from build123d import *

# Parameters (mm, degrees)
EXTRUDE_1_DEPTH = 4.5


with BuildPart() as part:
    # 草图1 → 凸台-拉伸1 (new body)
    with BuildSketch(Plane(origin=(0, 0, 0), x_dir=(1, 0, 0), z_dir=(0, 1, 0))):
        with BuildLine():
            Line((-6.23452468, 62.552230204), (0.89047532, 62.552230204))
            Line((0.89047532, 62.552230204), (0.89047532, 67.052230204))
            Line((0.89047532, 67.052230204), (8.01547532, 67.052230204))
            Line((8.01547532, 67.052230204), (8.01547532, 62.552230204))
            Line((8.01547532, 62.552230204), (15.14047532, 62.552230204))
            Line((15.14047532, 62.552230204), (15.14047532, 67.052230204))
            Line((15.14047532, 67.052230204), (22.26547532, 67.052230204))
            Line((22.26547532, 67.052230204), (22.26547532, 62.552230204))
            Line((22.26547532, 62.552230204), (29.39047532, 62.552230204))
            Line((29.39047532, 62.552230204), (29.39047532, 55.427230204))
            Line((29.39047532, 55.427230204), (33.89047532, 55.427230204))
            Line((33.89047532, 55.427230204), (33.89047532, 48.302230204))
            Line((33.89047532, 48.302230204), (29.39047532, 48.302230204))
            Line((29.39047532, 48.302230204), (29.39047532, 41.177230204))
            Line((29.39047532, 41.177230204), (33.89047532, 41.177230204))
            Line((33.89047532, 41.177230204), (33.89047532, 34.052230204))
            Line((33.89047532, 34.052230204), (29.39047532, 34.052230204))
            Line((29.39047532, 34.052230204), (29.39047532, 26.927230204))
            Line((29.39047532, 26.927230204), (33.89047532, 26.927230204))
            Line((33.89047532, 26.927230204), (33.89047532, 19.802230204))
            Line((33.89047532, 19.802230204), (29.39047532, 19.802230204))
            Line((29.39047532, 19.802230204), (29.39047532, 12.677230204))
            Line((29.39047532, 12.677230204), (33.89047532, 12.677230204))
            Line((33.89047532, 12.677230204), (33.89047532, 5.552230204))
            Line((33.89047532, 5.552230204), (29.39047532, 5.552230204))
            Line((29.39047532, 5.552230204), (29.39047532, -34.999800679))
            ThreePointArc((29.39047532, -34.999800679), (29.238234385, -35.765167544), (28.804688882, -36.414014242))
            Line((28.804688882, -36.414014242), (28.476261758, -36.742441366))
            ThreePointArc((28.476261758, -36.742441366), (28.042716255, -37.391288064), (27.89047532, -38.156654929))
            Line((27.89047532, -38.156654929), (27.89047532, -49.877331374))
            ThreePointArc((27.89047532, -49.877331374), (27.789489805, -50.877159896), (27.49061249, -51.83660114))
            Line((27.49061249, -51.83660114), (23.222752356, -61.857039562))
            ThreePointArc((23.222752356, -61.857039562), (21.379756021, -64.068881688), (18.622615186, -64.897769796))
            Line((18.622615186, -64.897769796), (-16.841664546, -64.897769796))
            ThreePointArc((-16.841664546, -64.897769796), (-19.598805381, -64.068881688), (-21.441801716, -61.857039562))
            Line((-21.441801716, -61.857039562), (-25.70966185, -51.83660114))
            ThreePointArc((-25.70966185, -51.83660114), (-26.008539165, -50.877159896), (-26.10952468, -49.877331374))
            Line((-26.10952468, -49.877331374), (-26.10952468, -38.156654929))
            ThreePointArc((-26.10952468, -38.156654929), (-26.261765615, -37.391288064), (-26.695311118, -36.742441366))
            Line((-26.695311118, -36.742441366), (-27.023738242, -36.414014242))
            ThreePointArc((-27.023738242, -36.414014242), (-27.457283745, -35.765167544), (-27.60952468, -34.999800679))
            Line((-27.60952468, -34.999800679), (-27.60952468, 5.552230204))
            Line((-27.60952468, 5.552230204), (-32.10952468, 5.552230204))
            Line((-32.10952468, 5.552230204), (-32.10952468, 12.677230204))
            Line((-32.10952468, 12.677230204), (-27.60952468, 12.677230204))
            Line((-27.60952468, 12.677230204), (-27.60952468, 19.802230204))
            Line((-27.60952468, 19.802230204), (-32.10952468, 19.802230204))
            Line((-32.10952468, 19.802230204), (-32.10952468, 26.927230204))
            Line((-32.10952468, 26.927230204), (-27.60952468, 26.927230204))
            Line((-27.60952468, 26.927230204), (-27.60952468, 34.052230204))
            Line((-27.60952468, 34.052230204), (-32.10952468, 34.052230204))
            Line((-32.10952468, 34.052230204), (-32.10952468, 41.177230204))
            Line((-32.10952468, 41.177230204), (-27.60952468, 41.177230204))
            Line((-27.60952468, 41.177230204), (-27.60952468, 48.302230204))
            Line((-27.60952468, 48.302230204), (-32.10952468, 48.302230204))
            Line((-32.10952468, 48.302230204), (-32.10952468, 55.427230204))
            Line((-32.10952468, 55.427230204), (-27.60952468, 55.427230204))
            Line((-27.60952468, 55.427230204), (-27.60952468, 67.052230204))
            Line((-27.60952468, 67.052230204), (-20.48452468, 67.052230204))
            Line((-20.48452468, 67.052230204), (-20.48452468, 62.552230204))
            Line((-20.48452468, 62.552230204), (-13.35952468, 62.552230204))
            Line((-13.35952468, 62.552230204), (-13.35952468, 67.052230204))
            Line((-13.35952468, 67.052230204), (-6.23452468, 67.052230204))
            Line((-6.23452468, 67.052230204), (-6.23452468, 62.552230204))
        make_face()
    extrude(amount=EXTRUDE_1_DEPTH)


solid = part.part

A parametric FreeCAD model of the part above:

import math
import FreeCAD as App
import Part
import Sketcher
from FreeCAD import Vector
Q = App.Units.Quantity

doc = App.newDocument("Part")
body = doc.addObject("PartDesign::Body", "Body")

# Sketch on XZ plane
sketch1 = doc.addObject("Sketcher::SketchObject", "Sketch")
body.addObject(sketch1)
sketch1.AttachmentSupport = (doc.XZ_Plane, [""])
sketch1.MapMode = "FlatFace"
sketch1.addGeometry(Part.LineSegment(Vector(0.890475, -62.55223, 0), Vector(-6.234525, -62.55223, 0)), False)
sketch1.addGeometry(Part.LineSegment(Vector(-6.234525, -62.55223, 0), Vector(-6.234525, -67.05223, 0)), False)
sketch1.addGeometry(Part.LineSegment(Vector(-6.234525, -67.05223, 0), Vector(-13.359525, -67.05223, 0)), False)
sketch1.addGeometry(Part.LineSegment(Vector(-13.359525, -67.05223, 0), Vector(-13.359525, -62.55223, 0)), False)
sketch1.addGeometry(Part.LineSegment(Vector(-13.359525, -62.55223, 0), Vector(-20.484525, -62.55223, 0)), False)
sketch1.addGeometry(Part.LineSegment(Vector(-20.484525, -62.55223, 0), Vector(-20.484525, -67.05223, 0)), False)
sketch1.addGeometry(Part.LineSegment(Vector(-20.484525, -67.05223, 0), Vector(-27.609525, -67.05223, 0)), False)
sketch1.addGeometry(Part.LineSegment(Vector(-27.609525, -67.05223, 0), Vector(-27.609525, -55.42723, 0)), False)
sketch1.addGeometry(Part.LineSegment(Vector(-27.609525, -55.42723, 0), Vector(-32.109525, -55.42723, 0)), False)
sketch1.addGeometry(Part.LineSegment(Vector(-32.109525, -55.42723, 0), Vector(-32.109525, -48.30223, 0)), False)
sketch1.addGeometry(Part.LineSegment(Vector(-32.109525, -48.30223, 0), Vector(-27.609525, -48.30223, 0)), False)
sketch1.addGeometry(Part.LineSegment(Vector(-27.609525, -48.30223, 0), Vector(-27.609525, -41.17723, 0)), False)
sketch1.addGeometry(Part.LineSegment(Vector(-27.609525, -41.17723, 0), Vector(-32.109525, -41.17723, 0)), False)
sketch1.addGeometry(Part.LineSegment(Vector(-32.109525, -41.17723, 0), Vector(-32.109525, -34.05223, 0)), False)
sketch1.addGeometry(Part.LineSegment(Vector(-32.109525, -34.05223, 0), Vector(-27.609525, -34.05223, 0)), False)
sketch1.addGeometry(Part.LineSegment(Vector(-27.609525, -34.05223, 0), Vector(-27.609525, -26.92723, 0)), False)
sketch1.addGeometry(Part.LineSegment(Vector(-27.609525, -26.92723, 0), Vector(-32.109525, -26.92723, 0)), False)
sketch1.addGeometry(Part.LineSegment(Vector(-32.109525, -26.92723, 0), Vector(-32.109525, -19.80223, 0)), False)
sketch1.addGeometry(Part.LineSegment(Vector(-32.109525, -19.80223, 0), Vector(-27.609525, -19.80223, 0)), False)
sketch1.addGeometry(Part.LineSegment(Vector(-27.609525, -19.80223, 0), Vector(-27.609525, -12.67723, 0)), False)
sketch1.addGeometry(Part.LineSegment(Vector(-27.609525, -12.67723, 0), Vector(-32.109525, -12.67723, 0)), False)
sketch1.addGeometry(Part.LineSegment(Vector(-32.109525, -12.67723, 0), Vector(-32.109525, -5.55223, 0)), False)
sketch1.addGeometry(Part.LineSegment(Vector(-32.109525, -5.55223, 0), Vector(-27.609525, -5.55223, 0)), False)
sketch1.addGeometry(Part.LineSegment(Vector(-27.609525, -5.55223, 0), Vector(-27.609525, 34.999801, 0)), False)
sketch1.addGeometry(Part.ArcOfCircle(Part.Circle(Vector(-25.609525, 34.999801, 0), Vector(0, 0, 1), 2), math.radians(135), math.radians(180)), False)
sketch1.addGeometry(Part.LineSegment(Vector(-27.023738, 36.414014, 0), Vector(-26.695311, 36.742441, 0)), False)
sketch1.addGeometry(Part.ArcOfCircle(Part.Circle(Vector(-28.109525, 38.156655, 0), Vector(0, 0, 1), 2), math.radians(-45), math.radians(0)), False)
sketch1.addGeometry(Part.LineSegment(Vector(-26.109525, 38.156655, 0), Vector(-26.109525, 49.877331, 0)), False)
sketch1.addGeometry(Part.ArcOfCircle(Part.Circle(Vector(-21.109525, 49.877331, 0), Vector(0, 0, 1), 5), math.radians(156.930093), math.radians(180)), False)
sketch1.addGeometry(Part.LineSegment(Vector(-25.709662, 51.836601, 0), Vector(-21.441802, 61.85704, 0)), False)
sketch1.addGeometry(Part.ArcOfCircle(Part.Circle(Vector(-16.841665, 59.89777, 0), Vector(0, 0, 1), 5), math.radians(90), math.radians(156.930093)), False)
sketch1.addGeometry(Part.LineSegment(Vector(-16.841665, 64.89777, 0), Vector(18.622615, 64.89777, 0)), False)
sketch1.addGeometry(Part.ArcOfCircle(Part.Circle(Vector(18.622615, 59.89777, 0), Vector(0, 0, 1), 5), math.radians(23.069907), math.radians(90)), False)
sketch1.addGeometry(Part.LineSegment(Vector(23.222752, 61.85704, 0), Vector(27.490612, 51.836601, 0)), False)
sketch1.addGeometry(Part.ArcOfCircle(Part.Circle(Vector(22.890475, 49.877331, 0), Vector(0, 0, 1), 5), math.radians(0), math.radians(23.069907)), False)
sketch1.addGeometry(Part.LineSegment(Vector(27.890475, 49.877331, 0), Vector(27.890475, 38.156655, 0)), False)
sketch1.addGeometry(Part.ArcOfCircle(Part.Circle(Vector(29.890475, 38.156655, 0), Vector(0, 0, 1), 2), math.radians(180), math.radians(225)), False)
sketch1.addGeometry(Part.LineSegment(Vector(28.476262, 36.742441, 0), Vector(28.804689, 36.414014, 0)), False)
sketch1.addGeometry(Part.ArcOfCircle(Part.Circle(Vector(27.390475, 34.999801, 0), Vector(0, 0, 1), 2), math.radians(0), math.radians(45)), False)
sketch1.addGeometry(Part.LineSegment(Vector(29.390475, 34.999801, 0), Vector(29.390475, -5.55223, 0)), False)
sketch1.addGeometry(Part.LineSegment(Vector(29.390475, -5.55223, 0), Vector(33.890475, -5.55223, 0)), False)
sketch1.addGeometry(Part.LineSegment(Vector(33.890475, -5.55223, 0), Vector(33.890475, -12.67723, 0)), False)
sketch1.addGeometry(Part.LineSegment(Vector(33.890475, -12.67723, 0), Vector(29.390475, -12.67723, 0)), False)
sketch1.addGeometry(Part.LineSegment(Vector(29.390475, -12.67723, 0), Vector(29.390475, -19.80223, 0)), False)
sketch1.addGeometry(Part.LineSegment(Vector(29.390475, -19.80223, 0), Vector(33.890475, -19.80223, 0)), False)
sketch1.addGeometry(Part.LineSegment(Vector(33.890475, -19.80223, 0), Vector(33.890475, -26.92723, 0)), False)
sketch1.addGeometry(Part.LineSegment(Vector(33.890475, -26.92723, 0), Vector(29.390475, -26.92723, 0)), False)
sketch1.addGeometry(Part.LineSegment(Vector(29.390475, -26.92723, 0), Vector(29.390475, -34.05223, 0)), False)
sketch1.addGeometry(Part.LineSegment(Vector(29.390475, -34.05223, 0), Vector(33.890475, -34.05223, 0)), False)
sketch1.addGeometry(Part.LineSegment(Vector(33.890475, -34.05223, 0), Vector(33.890475, -41.17723, 0)), False)
sketch1.addGeometry(Part.LineSegment(Vector(33.890475, -41.17723, 0), Vector(29.390475, -41.17723, 0)), False)
sketch1.addGeometry(Part.LineSegment(Vector(29.390475, -41.17723, 0), Vector(29.390475, -48.30223, 0)), False)
sketch1.addGeometry(Part.LineSegment(Vector(29.390475, -48.30223, 0), Vector(33.890475, -48.30223, 0)), False)
sketch1.addGeometry(Part.LineSegment(Vector(33.890475, -48.30223, 0), Vector(33.890475, -55.42723, 0)), False)
sketch1.addGeometry(Part.LineSegment(Vector(33.890475, -55.42723, 0), Vector(29.390475, -55.42723, 0)), False)
sketch1.addGeometry(Part.LineSegment(Vector(29.390475, -55.42723, 0), Vector(29.390475, -62.55223, 0)), False)
sketch1.addGeometry(Part.LineSegment(Vector(29.390475, -62.55223, 0), Vector(22.265475, -62.55223, 0)), False)
sketch1.addGeometry(Part.LineSegment(Vector(22.265475, -62.55223, 0), Vector(22.265475, -67.05223, 0)), False)
sketch1.addGeometry(Part.LineSegment(Vector(22.265475, -67.05223, 0), Vector(15.140475, -67.05223, 0)), False)
sketch1.addGeometry(Part.LineSegment(Vector(15.140475, -67.05223, 0), Vector(15.140475, -62.55223, 0)), False)
sketch1.addGeometry(Part.LineSegment(Vector(15.140475, -62.55223, 0), Vector(8.015475, -62.55223, 0)), False)
sketch1.addGeometry(Part.LineSegment(Vector(8.015475, -62.55223, 0), Vector(8.015475, -67.05223, 0)), False)
sketch1.addGeometry(Part.LineSegment(Vector(8.015475, -67.05223, 0), Vector(0.890475, -67.05223, 0)), False)
sketch1.addGeometry(Part.LineSegment(Vector(0.890475, -67.05223, 0), Vector(0.890475, -62.55223, 0)), False)
sketch1.addConstraint(Sketcher.Constraint("Coincident", 0, 2, 1, 1))
sketch1.addConstraint(Sketcher.Constraint("Coincident", 1, 2, 2, 1))
sketch1.addConstraint(Sketcher.Constraint("Coincident", 2, 2, 3, 1))
sketch1.addConstraint(Sketcher.Constraint("Coincident", 3, 2, 4, 1))
sketch1.addConstraint(Sketcher.Constraint("Coincident", 4, 2, 5, 1))
sketch1.addConstraint(Sketcher.Constraint("Coincident", 5, 2, 6, 1))
sketch1.addConstraint(Sketcher.Constraint("Coincident", 6, 2, 7, 1))
sketch1.addConstraint(Sketcher.Constraint("Coincident", 7, 2, 8, 1))
sketch1.addConstraint(Sketcher.Constraint("Coincident", 8, 2, 9, 1))
sketch1.addConstraint(Sketcher.Constraint("Coincident", 9, 2, 10, 1))
sketch1.addConstraint(Sketcher.Constraint("Coincident", 10, 2, 11, 1))
sketch1.addConstraint(Sketcher.Constraint("Coincident", 11, 2, 12, 1))
sketch1.addConstraint(Sketcher.Constraint("Coincident", 12, 2, 13, 1))
sketch1.addConstraint(Sketcher.Constraint("Coincident", 13, 2, 14, 1))
sketch1.addConstraint(Sketcher.Constraint("Coincident", 14, 2, 15, 1))
sketch1.addConstraint(Sketcher.Constraint("Coincident", 15, 2, 16, 1))
sketch1.addConstraint(Sketcher.Constraint("Coincident", 16, 2, 17, 1))
sketch1.addConstraint(Sketcher.Constraint("Coincident", 17, 2, 18, 1))
sketch1.addConstraint(Sketcher.Constraint("Coincident", 18, 2, 19, 1))
sketch1.addConstraint(Sketcher.Constraint("Coincident", 19, 2, 20, 1))
sketch1.addConstraint(Sketcher.Constraint("Coincident", 20, 2, 21, 1))
sketch1.addConstraint(Sketcher.Constraint("Coincident", 21, 2, 22, 1))
sketch1.addConstraint(Sketcher.Constraint("Coincident", 22, 2, 23, 1))
sketch1.addConstraint(Sketcher.Constraint("Tangent", 23, 2, 24, 2))
sketch1.addConstraint(Sketcher.Constraint("Tangent", 24, 1, 25, 1))
sketch1.addConstraint(Sketcher.Constraint("Tangent", 25, 2, 26, 1))
sketch1.addConstraint(Sketcher.Constraint("Tangent", 26, 2, 27, 1))
sketch1.addConstraint(Sketcher.Constraint("Tangent", 27, 2, 28, 2))
sketch1.addConstraint(Sketcher.Constraint("Tangent", 28, 1, 29, 1))
sketch1.addConstraint(Sketcher.Constraint("Tangent", 29, 2, 30, 2))
sketch1.addConstraint(Sketcher.Constraint("Tangent", 30, 1, 31, 1))
sketch1.addConstraint(Sketcher.Constraint("Tangent", 31, 2, 32, 2))
sketch1.addConstraint(Sketcher.Constraint("Tangent", 32, 1, 33, 1))
sketch1.addConstraint(Sketcher.Constraint("Tangent", 33, 2, 34, 2))
sketch1.addConstraint(Sketcher.Constraint("Tangent", 34, 1, 35, 1))
sketch1.addConstraint(Sketcher.Constraint("Tangent", 35, 2, 36, 1))
sketch1.addConstraint(Sketcher.Constraint("Tangent", 36, 2, 37, 1))
sketch1.addConstraint(Sketcher.Constraint("Tangent", 37, 2, 38, 2))
sketch1.addConstraint(Sketcher.Constraint("Tangent", 38, 1, 39, 1))
sketch1.addConstraint(Sketcher.Constraint("Coincident", 39, 2, 40, 1))
sketch1.addConstraint(Sketcher.Constraint("Coincident", 40, 2, 41, 1))
sketch1.addConstraint(Sketcher.Constraint("Coincident", 41, 2, 42, 1))
sketch1.addConstraint(Sketcher.Constraint("Coincident", 42, 2, 43, 1))
sketch1.addConstraint(Sketcher.Constraint("Coincident", 43, 2, 44, 1))
sketch1.addConstraint(Sketcher.Constraint("Coincident", 44, 2, 45, 1))
sketch1.addConstraint(Sketcher.Constraint("Coincident", 45, 2, 46, 1))
sketch1.addConstraint(Sketcher.Constraint("Coincident", 46, 2, 47, 1))
sketch1.addConstraint(Sketcher.Constraint("Coincident", 47, 2, 48, 1))
sketch1.addConstraint(Sketcher.Constraint("Coincident", 48, 2, 49, 1))
sketch1.addConstraint(Sketcher.Constraint("Coincident", 49, 2, 50, 1))
sketch1.addConstraint(Sketcher.Constraint("Coincident", 50, 2, 51, 1))
sketch1.addConstraint(Sketcher.Constraint("Coincident", 51, 2, 52, 1))
sketch1.addConstraint(Sketcher.Constraint("Coincident", 52, 2, 53, 1))
sketch1.addConstraint(Sketcher.Constraint("Coincident", 53, 2, 54, 1))
sketch1.addConstraint(Sketcher.Constraint("Coincident", 54, 2, 55, 1))
sketch1.addConstraint(Sketcher.Constraint("Coincident", 55, 2, 56, 1))
sketch1.addConstraint(Sketcher.Constraint("Coincident", 56, 2, 57, 1))
sketch1.addConstraint(Sketcher.Constraint("Coincident", 57, 2, 58, 1))
sketch1.addConstraint(Sketcher.Constraint("Coincident", 58, 2, 59, 1))
sketch1.addConstraint(Sketcher.Constraint("Coincident", 59, 2, 60, 1))
sketch1.addConstraint(Sketcher.Constraint("Coincident", 60, 2, 61, 1))
sketch1.addConstraint(Sketcher.Constraint("Coincident", 61, 2, 62, 1))
sketch1.addConstraint(Sketcher.Constraint("Coincident", 62, 2, 63, 1))
sketch1.addConstraint(Sketcher.Constraint("Coincident", 63, 2, 0, 1))
sketch1.addConstraint(Sketcher.Constraint("Horizontal", 0))
sketch1.addConstraint(Sketcher.Constraint("Vertical", 1))
sketch1.addConstraint(Sketcher.Constraint("Horizontal", 2))
sketch1.addConstraint(Sketcher.Constraint("Vertical", 3))
sketch1.addConstraint(Sketcher.Constraint("Horizontal", 4))
sketch1.addConstraint(Sketcher.Constraint("Vertical", 5))
sketch1.addConstraint(Sketcher.Constraint("Horizontal", 6))
sketch1.addConstraint(Sketcher.Constraint("Vertical", 7))
sketch1.addConstraint(Sketcher.Constraint("Horizontal", 8))
sketch1.addConstraint(Sketcher.Constraint("Vertical", 9))
sketch1.addConstraint(Sketcher.Constraint("Horizontal", 10))
sketch1.addConstraint(Sketcher.Constraint("Vertical", 11))
sketch1.addConstraint(Sketcher.Constraint("Horizontal", 12))
sketch1.addConstraint(Sketcher.Constraint("Vertical", 13))
sketch1.addConstraint(Sketcher.Constraint("Horizontal", 14))
sketch1.addConstraint(Sketcher.Constraint("Vertical", 15))
sketch1.addConstraint(Sketcher.Constraint("Horizontal", 16))
sketch1.addConstraint(Sketcher.Constraint("Vertical", 17))
sketch1.addConstraint(Sketcher.Constraint("Horizontal", 18))
sketch1.addConstraint(Sketcher.Constraint("Vertical", 19))
sketch1.addConstraint(Sketcher.Constraint("Horizontal", 20))
sketch1.addConstraint(Sketcher.Constraint("Vertical", 21))
sketch1.addConstraint(Sketcher.Constraint("Horizontal", 22))
sketch1.addConstraint(Sketcher.Constraint("Vertical", 23))
sketch1.addConstraint(Sketcher.Constraint("Vertical", 27))
sketch1.addConstraint(Sketcher.Constraint("Horizontal", 31))
sketch1.addConstraint(Sketcher.Constraint("Vertical", 35))
sketch1.addConstraint(Sketcher.Constraint("Vertical", 39))
sketch1.addConstraint(Sketcher.Constraint("Horizontal", 40))
sketch1.addConstraint(Sketcher.Constraint("Vertical", 41))
sketch1.addConstraint(Sketcher.Constraint("Horizontal", 42))
sketch1.addConstraint(Sketcher.Constraint("Vertical", 43))
sketch1.addConstraint(Sketcher.Constraint("Horizontal", 44))
sketch1.addConstraint(Sketcher.Constraint("Vertical", 45))
sketch1.addConstraint(Sketcher.Constraint("Horizontal", 46))
sketch1.addConstraint(Sketcher.Constraint("Vertical", 47))
sketch1.addConstraint(Sketcher.Constraint("Horizontal", 48))
sketch1.addConstraint(Sketcher.Constraint("Vertical", 49))
sketch1.addConstraint(Sketcher.Constraint("Horizontal", 50))
sketch1.addConstraint(Sketcher.Constraint("Vertical", 51))
sketch1.addConstraint(Sketcher.Constraint("Horizontal", 52))
sketch1.addConstraint(Sketcher.Constraint("Vertical", 53))
sketch1.addConstraint(Sketcher.Constraint("Horizontal", 54))
sketch1.addConstraint(Sketcher.Constraint("Vertical", 55))
sketch1.addConstraint(Sketcher.Constraint("Horizontal", 56))
sketch1.addConstraint(Sketcher.Constraint("Vertical", 57))
sketch1.addConstraint(Sketcher.Constraint("Horizontal", 58))
sketch1.addConstraint(Sketcher.Constraint("Vertical", 59))
sketch1.addConstraint(Sketcher.Constraint("Horizontal", 60))
sketch1.addConstraint(Sketcher.Constraint("Vertical", 61))
sketch1.addConstraint(Sketcher.Constraint("Horizontal", 62))
sketch1.addConstraint(Sketcher.Constraint("Vertical", 63))
sketch1.addConstraint(Sketcher.Constraint("Equal", 24, 26))
sketch1.addConstraint(Sketcher.Constraint("Equal", 28, 30))
sketch1.addConstraint(Sketcher.Constraint("Equal", 30, 32))
sketch1.addConstraint(Sketcher.Constraint("Equal", 32, 34))
sketch1.addConstraint(Sketcher.Constraint("Equal", 26, 36))
sketch1.addConstraint(Sketcher.Constraint("Equal", 36, 38))
sketch1.addConstraint(Sketcher.Constraint("Perpendicular", 25, 37))
sketch1.addConstraint(Sketcher.Constraint("Horizontal", 28, 3, 34, 3))
sketch1.addConstraint(Sketcher.Constraint("Horizontal", 26, 3, 36, 3))
sketch1.addConstraint(Sketcher.Constraint("Horizontal", 24, 3, 38, 3))
sketch1.addConstraint(Sketcher.Constraint("Horizontal", 0, 2, 3, 2))
sketch1.addConstraint(Sketcher.Constraint("Horizontal", 2, 2, 5, 2))
sketch1.addConstraint(Sketcher.Constraint("Horizontal", 29, 2, 32, 1))
sketch1.addConstraint(Sketcher.Constraint("Horizontal", 25, 2, 36, 2))
sketch1.addConstraint(Sketcher.Constraint("Horizontal", 22, 2, 39, 2))
sketch1.addConstraint(Sketcher.Constraint("Horizontal", 20, 2, 41, 2))
sketch1.addConstraint(Sketcher.Constraint("Horizontal", 18, 2, 43, 2))
sketch1.addConstraint(Sketcher.Constraint("Horizontal", 16, 2, 45, 2))
sketch1.addConstraint(Sketcher.Constraint("Horizontal", 14, 2, 47, 2))
sketch1.addConstraint(Sketcher.Constraint("Horizontal", 12, 2, 49, 2))
sketch1.addConstraint(Sketcher.Constraint("Horizontal", 10, 2, 51, 2))
sketch1.addConstraint(Sketcher.Constraint("Horizontal", 8, 2, 53, 2))
sketch1.addConstraint(Sketcher.Constraint("Horizontal", 4, 2, 55, 2))
sketch1.addConstraint(Sketcher.Constraint("Horizontal", 6, 2, 57, 2))
sketch1.addConstraint(Sketcher.Constraint("Horizontal", 56, 2, 59, 2))
sketch1.addConstraint(Sketcher.Constraint("Horizontal", 58, 2, 61, 2))
sketch1.addConstraint(Sketcher.Constraint("Vertical", 7, 2, 10, 2))
sketch1.addConstraint(Sketcher.Constraint("Vertical", 9, 2, 12, 2))
sketch1.addConstraint(Sketcher.Constraint("Vertical", 11, 2, 14, 2))
sketch1.addConstraint(Sketcher.Constraint("Vertical", 13, 2, 16, 2))
sketch1.addConstraint(Sketcher.Constraint("Vertical", 15, 2, 18, 2))
sketch1.addConstraint(Sketcher.Constraint("Vertical", 17, 2, 20, 2))
sketch1.addConstraint(Sketcher.Constraint("Vertical", 19, 2, 22, 2))
sketch1.addConstraint(Sketcher.Constraint("Vertical", 39, 2, 42, 2))
sketch1.addConstraint(Sketcher.Constraint("Vertical", 41, 2, 44, 2))
sketch1.addConstraint(Sketcher.Constraint("Vertical", 43, 2, 46, 2))
sketch1.addConstraint(Sketcher.Constraint("Vertical", 45, 2, 48, 2))
sketch1.addConstraint(Sketcher.Constraint("Vertical", 47, 2, 50, 2))
sketch1.addConstraint(Sketcher.Constraint("Vertical", 49, 2, 52, 2))
sketch1.addConstraint(Sketcher.Constraint("Vertical", 51, 2, 54, 2))
sketch1.addConstraint(Sketcher.Constraint("Equal", 0, 2))
sketch1.addConstraint(Sketcher.Constraint("Equal", 2, 4))
sketch1.addConstraint(Sketcher.Constraint("Equal", 4, 6))
sketch1.addConstraint(Sketcher.Constraint("Equal", 22, 40))
sketch1.addConstraint(Sketcher.Constraint("Equal", 6, 56))
sketch1.addConstraint(Sketcher.Constraint("Equal", 56, 58))
sketch1.addConstraint(Sketcher.Constraint("Equal", 58, 60))
sketch1.addConstraint(Sketcher.Constraint("Equal", 60, 62))
sketch1.addConstraint(Sketcher.Constraint("Equal", 54, 1))
sketch1.addConstraint(Sketcher.Constraint("Equal", 62, 9))
sketch1.addConstraint(Sketcher.Constraint("Equal", 9, 11))
sketch1.addConstraint(Sketcher.Constraint("Equal", 11, 13))
sketch1.addConstraint(Sketcher.Constraint("Equal", 13, 15))
sketch1.addConstraint(Sketcher.Constraint("Equal", 15, 17))
sketch1.addConstraint(Sketcher.Constraint("Equal", 17, 19))
sketch1.addConstraint(Sketcher.Constraint("Equal", 19, 21))
sketch1.addConstraint(Sketcher.Constraint("Equal", 53, 55))
sketch1.addConstraint(Sketcher.Constraint("Radius", 24, Q("2 mm")))
sketch1.addConstraint(Sketcher.Constraint("Radius", 28, Q("5 mm")))
sketch1.addConstraint(Sketcher.Constraint("DistanceX", 8, 2, 8, 1, Q("4.5 mm")))
sketch1.addConstraint(Sketcher.Constraint("DistanceX", 0, 2, 0, 1, Q("7.125 mm")))
sketch1.addConstraint(Sketcher.Constraint("DistanceX", 31, 1, 31, 2, Q("35.46428 mm")))
sketch1.addConstraint(Sketcher.Constraint("DistanceY", 23, 1, 23, 2, Q("40.552031 mm")))
sketch1.addConstraint(Sketcher.Constraint("DistanceY", -1, 1, 24, 3, Q("34.999801 mm")))
sketch1.addConstraint(Sketcher.Constraint("DistanceY", -1, 1, 28, 1, Q("51.836601 mm")))
sketch1.addConstraint(Sketcher.Constraint("DistanceX", 29, 2, -1, 1, Q("21.441802 mm")))
sketch1.addConstraint(Sketcher.Constraint("DistanceY", 27, 1, 27, 2, Q("11.720676 mm")))
sketch1.addConstraint(Sketcher.Constraint("DistanceY", -1, 1, 28, 3, Q("49.877331 mm")))
pad1 = doc.addObject("PartDesign::Pad", "Pad")
body.addObject(pad1)
pad1.Profile = sketch1
pad1.Length = 4.5
pad1.Reversed = True

doc.recompute()
